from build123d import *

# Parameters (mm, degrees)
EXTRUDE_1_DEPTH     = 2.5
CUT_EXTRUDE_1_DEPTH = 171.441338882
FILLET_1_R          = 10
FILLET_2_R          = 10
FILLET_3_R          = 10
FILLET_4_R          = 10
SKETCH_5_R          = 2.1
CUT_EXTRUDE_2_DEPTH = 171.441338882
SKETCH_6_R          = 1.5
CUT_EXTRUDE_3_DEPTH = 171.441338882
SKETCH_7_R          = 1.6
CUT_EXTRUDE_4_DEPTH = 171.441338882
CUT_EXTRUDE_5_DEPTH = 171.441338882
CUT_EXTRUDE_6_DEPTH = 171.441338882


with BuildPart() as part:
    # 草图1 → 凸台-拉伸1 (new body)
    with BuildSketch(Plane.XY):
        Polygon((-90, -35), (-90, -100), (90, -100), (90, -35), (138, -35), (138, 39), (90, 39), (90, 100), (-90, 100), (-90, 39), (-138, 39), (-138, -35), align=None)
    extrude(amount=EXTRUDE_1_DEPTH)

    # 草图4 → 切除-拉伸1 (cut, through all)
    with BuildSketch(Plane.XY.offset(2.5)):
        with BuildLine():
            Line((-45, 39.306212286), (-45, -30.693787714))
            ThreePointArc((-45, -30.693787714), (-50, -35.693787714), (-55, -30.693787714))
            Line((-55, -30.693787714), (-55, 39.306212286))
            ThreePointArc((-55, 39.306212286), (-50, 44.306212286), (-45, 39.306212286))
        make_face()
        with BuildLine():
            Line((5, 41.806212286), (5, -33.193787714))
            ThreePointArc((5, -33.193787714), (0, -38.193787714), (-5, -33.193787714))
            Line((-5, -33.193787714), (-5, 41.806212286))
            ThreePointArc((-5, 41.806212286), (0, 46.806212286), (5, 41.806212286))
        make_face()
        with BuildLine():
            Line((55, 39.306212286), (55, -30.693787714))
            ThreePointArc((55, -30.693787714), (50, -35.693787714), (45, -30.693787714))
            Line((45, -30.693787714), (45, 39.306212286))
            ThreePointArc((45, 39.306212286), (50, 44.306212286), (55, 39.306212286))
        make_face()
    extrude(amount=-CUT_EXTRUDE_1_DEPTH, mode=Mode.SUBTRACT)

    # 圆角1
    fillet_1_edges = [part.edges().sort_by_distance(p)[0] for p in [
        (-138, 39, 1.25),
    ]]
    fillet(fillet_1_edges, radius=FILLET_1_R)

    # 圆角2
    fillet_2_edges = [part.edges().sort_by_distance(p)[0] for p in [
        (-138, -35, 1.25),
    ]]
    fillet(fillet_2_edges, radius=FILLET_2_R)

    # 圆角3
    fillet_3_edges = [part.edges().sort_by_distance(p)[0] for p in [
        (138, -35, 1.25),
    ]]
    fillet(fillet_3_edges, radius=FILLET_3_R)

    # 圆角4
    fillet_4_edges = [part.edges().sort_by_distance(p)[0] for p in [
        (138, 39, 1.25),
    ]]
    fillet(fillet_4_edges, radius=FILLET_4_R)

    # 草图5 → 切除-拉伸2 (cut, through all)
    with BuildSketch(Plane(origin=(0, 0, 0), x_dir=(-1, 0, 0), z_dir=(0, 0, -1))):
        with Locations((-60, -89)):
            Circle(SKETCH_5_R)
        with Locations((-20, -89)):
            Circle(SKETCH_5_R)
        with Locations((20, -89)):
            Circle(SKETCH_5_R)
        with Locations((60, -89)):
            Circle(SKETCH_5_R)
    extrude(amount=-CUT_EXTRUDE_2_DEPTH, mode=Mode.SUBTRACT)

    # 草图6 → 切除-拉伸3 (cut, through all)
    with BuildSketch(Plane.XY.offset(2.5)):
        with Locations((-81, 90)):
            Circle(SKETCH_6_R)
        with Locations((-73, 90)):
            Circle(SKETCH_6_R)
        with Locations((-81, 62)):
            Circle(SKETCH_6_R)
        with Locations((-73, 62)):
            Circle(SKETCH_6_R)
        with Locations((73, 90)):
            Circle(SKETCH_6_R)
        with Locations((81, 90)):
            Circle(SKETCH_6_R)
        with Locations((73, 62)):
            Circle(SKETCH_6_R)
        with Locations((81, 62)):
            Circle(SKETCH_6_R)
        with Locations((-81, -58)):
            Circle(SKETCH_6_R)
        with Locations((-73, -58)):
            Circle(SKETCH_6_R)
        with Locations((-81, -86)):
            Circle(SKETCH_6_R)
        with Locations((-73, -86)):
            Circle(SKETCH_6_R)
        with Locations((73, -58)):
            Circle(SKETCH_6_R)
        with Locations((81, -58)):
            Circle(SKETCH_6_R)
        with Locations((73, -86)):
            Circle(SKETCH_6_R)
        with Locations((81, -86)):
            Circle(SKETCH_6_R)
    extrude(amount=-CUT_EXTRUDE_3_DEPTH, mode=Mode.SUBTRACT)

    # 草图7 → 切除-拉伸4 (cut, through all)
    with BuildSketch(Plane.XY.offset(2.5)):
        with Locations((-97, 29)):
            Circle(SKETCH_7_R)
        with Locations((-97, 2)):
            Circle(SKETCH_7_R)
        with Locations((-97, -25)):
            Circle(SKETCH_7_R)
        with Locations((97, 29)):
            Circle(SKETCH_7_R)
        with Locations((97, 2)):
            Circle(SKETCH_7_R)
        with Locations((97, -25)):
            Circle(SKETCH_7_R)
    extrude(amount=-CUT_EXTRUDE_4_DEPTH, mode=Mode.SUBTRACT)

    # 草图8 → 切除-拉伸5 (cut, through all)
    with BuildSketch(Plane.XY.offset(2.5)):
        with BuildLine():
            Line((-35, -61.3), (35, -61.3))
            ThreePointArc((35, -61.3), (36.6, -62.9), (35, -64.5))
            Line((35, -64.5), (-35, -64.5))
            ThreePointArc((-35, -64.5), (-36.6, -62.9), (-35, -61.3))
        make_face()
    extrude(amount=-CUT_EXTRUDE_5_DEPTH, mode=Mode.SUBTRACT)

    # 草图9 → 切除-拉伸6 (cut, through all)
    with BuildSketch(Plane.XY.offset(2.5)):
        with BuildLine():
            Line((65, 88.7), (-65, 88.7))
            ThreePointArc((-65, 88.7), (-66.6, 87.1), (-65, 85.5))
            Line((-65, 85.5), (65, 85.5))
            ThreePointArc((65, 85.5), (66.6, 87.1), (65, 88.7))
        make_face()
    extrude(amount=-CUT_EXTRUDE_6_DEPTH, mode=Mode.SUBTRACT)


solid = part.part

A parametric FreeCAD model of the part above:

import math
import FreeCAD as App
import Part
import Sketcher

V = App.Vector


def edges_at(feature, points):
    """Names of the edges that pass closest to the given points."""
    edges = feature.Shape.Edges
    near = lambda p: min(range(len(edges)), key=lambda i: edges[i].distToShape(Part.Vertex(*p))[0])
    return sorted({f"Edge{near(p) + 1}" for p in points})

doc = App.newDocument("Part")
params = doc.addObject("Spreadsheet::Sheet", "Params")
for row, (alias, value) in enumerate([
    ("sketch1_width", "180 mm"),
    ("sketch1_width2", "48 mm"),
    ("sketch1_height", "65 mm"),
    ("sketch1_height2", "74 mm"),
    ("sketch1_height3", "61 mm"),
    ("pad1_length", "2.5 mm"),
    ("sketch2_radius", "5 mm"),
    ("sketch2_height", "70 mm"),
    ("sketch2_height2", "75 mm"),
    ("fillet_radius", "10 mm"),
    ("fillet2_radius", "10 mm"),
    ("fillet3_radius", "10 mm"),
    ("fillet4_radius", "10 mm"),
    ("sketch3_diameter", "4.2 mm"),
    ("sketch4_diameter", "3 mm"),
    ("sketch5_diameter", "3.2 mm"),
    ("sketch6_radius", "1.6 mm"),
    ("sketch6_width", "70 mm"),
    ("sketch7_radius", "1.6 mm"),
    ("sketch7_width", "130 mm"),
], start=1):
    params.set(f"A{row}", alias)
    params.set(f"B{row}", "=" + value)
    params.setAlias(f"B{row}", alias)

body = doc.addObject("PartDesign::Body", "Body")

# Sketch on XY plane
sketch1 = body.newObject("Sketcher::SketchObject", "Sketch")
sketch1.AttachmentSupport = (doc.getObject("XY_Plane"), [""])
sketch1.MapMode = "FlatFace"
sketch1.addGeometry(Part.LineSegment(V(-90, -35, 0), V(-90, -100, 0)), False)
sketch1.addGeometry(Part.LineSegment(V(-90, -100, 0), V(90, -100, 0)), False)
sketch1.addGeometry(Part.LineSegment(V(90, -100, 0), V(90, -35, 0)), False)
sketch1.addGeometry(Part.LineSegment(V(90, -35, 0), V(138, -35, 0)), False)
sketch1.addGeometry(Part.LineSegment(V(138, -35, 0), V(138, 39, 0)), False)
sketch1.addGeometry(Part.LineSegment(V(138, 39, 0), V(90, 39, 0)), False)
sketch1.addGeometry(Part.LineSegment(V(90, 39, 0), V(90, 100, 0)), False)
sketch1.addGeometry(Part.LineSegment(V(90, 100, 0), V(-90, 100, 0)), False)
sketch1.addGeometry(Part.LineSegment(V(-90, 100, 0), V(-90, 39, 0)), False)
sketch1.addGeometry(Part.LineSegment(V(-90, 39, 0), V(-138, 39, 0)), False)
sketch1.addGeometry(Part.LineSegment(V(-138, 39, 0), V(-138, -35, 0)), False)
sketch1.addGeometry(Part.LineSegment(V(-138, -35, 0), V(-90, -35, 0)), False)
sketch1.addConstraint(Sketcher.Constraint("Coincident", 0, 2, 1, 1))
sketch1.addConstraint(Sketcher.Constraint("Coincident", 1, 2, 2, 1))
sketch1.addConstraint(Sketcher.Constraint("Coincident", 2, 2, 3, 1))
sketch1.addConstraint(Sketcher.Constraint("Coincident", 3, 2, 4, 1))
sketch1.addConstraint(Sketcher.Constraint("Coincident", 4, 2, 5, 1))
sketch1.addConstraint(Sketcher.Constraint("Coincident", 5, 2, 6, 1))
sketch1.addConstraint(Sketcher.Constraint("Coincident", 6, 2, 7, 1))
sketch1.addConstraint(Sketcher.Constraint("Coincident", 7, 2, 8, 1))
sketch1.addConstraint(Sketcher.Constraint("Coincident", 8, 2, 9, 1))
sketch1.addConstraint(Sketcher.Constraint("Coincident", 9, 2, 10, 1))
sketch1.addConstraint(Sketcher.Constraint("Coincident", 10, 2, 11, 1))
sketch1.addConstraint(Sketcher.Constraint("Coincident", 11, 2, 0, 1))
sketch1.addConstraint(Sketcher.Constraint("Vertical", 0))
sketch1.addConstraint(Sketcher.Constraint("Horizontal", 1))
sketch1.addConstraint(Sketcher.Constraint("Vertical", 2))
sketch1.addConstraint(Sketcher.Constraint("Horizontal", 3))
sketch1.addConstraint(Sketcher.Constraint("Vertical", 4))
sketch1.addConstraint(Sketcher.Constraint("Horizontal", 5))
sketch1.addConstraint(Sketcher.Constraint("Vertical", 6))
sketch1.addConstraint(Sketcher.Constraint("Horizontal", 7))
sketch1.addConstraint(Sketcher.Constraint("Vertical", 8))
sketch1.addConstraint(Sketcher.Constraint("Horizontal", 9))
sketch1.addConstraint(Sketcher.Constraint("Vertical", 10))
sketch1.addConstraint(Sketcher.Constraint("Horizontal", 11))
sketch1.addConstraint(Sketcher.Constraint("Symmetric", 0, 2, 6, 2, -1, 1))
sketch1.addConstraint(Sketcher.Constraint("Symmetric", 5, 2, 8, 2, -2))
sketch1.addConstraint(Sketcher.Constraint("Symmetric", 3, 2, 10, 2, -2))
sketch1.addConstraint(Sketcher.Constraint("Vertical", 2, 2, 5, 2))
sketch1.addConstraint(Sketcher.Constraint("DistanceX", 1, 1, 1, 2, 180.0))
sketch1.addConstraint(Sketcher.Constraint("DistanceX", 3, 1, 3, 2, 48.0))
sketch1.addConstraint(Sketcher.Constraint("DistanceY", 0, 2, 0, 1, 65.0))
sketch1.addConstraint(Sketcher.Constraint("DistanceY", 4, 1, 4, 2, 74.0))
sketch1.addConstraint(Sketcher.Constraint("DistanceY", 6, 1, 6, 2, 61.0))
sketch1.setExpression("Constraints[28]", "Params.sketch1_width")
sketch1.setExpression("Constraints[29]", "Params.sketch1_width2")
sketch1.setExpression("Constraints[30]", "Params.sketch1_height")
sketch1.setExpression("Constraints[31]", "Params.sketch1_height2")
sketch1.setExpression("Constraints[32]", "Params.sketch1_height3")
pad1 = body.newObject("PartDesign::Pad", "Pad")
pad1.Profile = sketch1
pad1.setExpression("Length", "Params.pad1_length")

# Sketch on XY plane
sketch2 = body.newObject("Sketcher::SketchObject", "Sketch001")
sketch2.AttachmentSupport = (doc.getObject("XY_Plane"), [""])
sketch2.MapMode = "FlatFace"
sketch2.AttachmentOffset = App.Placement(V(0, 0, 2.5), App.Rotation())
sketch2.addGeometry(Part.LineSegment(V(-45, -30.693788, 0), V(-45, 39.306212, 0)), False)
sketch2.addGeometry(Part.ArcOfCircle(Part.Circle(V(-50, 39.306212, 0), V(0, 0, 1), 5), math.radians(0), math.radians(180)), False)
sketch2.addGeometry(Part.LineSegment(V(-55, 39.306212, 0), V(-55, -30.693788, 0)), False)
sketch2.addGeometry(Part.ArcOfCircle(Part.Circle(V(-50, -30.693788, 0), V(0, 0, 1), 5), math.radians(180), math.radians(360)), False)
sketch2.addGeometry(Part.LineSegment(V(5, -33.193788, 0), V(5, 41.806212, 0)), False)
sketch2.addGeometry(Part.ArcOfCircle(Part.Circle(V(0, 41.806212, 0), V(0, 0, 1), 5), math.radians(0), math.radians(180)), False)
sketch2.addGeometry(Part.LineSegment(V(-5, 41.806212, 0), V(-5, -33.193788, 0)), False)
sketch2.addGeometry(Part.ArcOfCircle(Part.Circle(V(0, -33.193788, 0), V(0, 0, 1), 5), math.radians(180), math.radians(360)), False)
sketch2.addGeometry(Part.LineSegment(V(55, -30.693788, 0), V(55, 39.306212, 0)), False)
sketch2.addGeometry(Part.ArcOfCircle(Part.Circle(V(50, 39.306212, 0), V(0, 0, 1), 5), math.radians(0), math.radians(180)), False)
sketch2.addGeometry(Part.LineSegment(V(45, 39.306212, 0), V(45, -30.693788, 0)), False)
sketch2.addGeometry(Part.ArcOfCircle(Part.Circle(V(50, -30.693788, 0), V(0, 0, 1), 5), math.radians(180), math.radians(360)), False)
sketch2.addConstraint(Sketcher.Constraint("Tangent", 0, 2, 1, 1))
sketch2.addConstraint(Sketcher.Constraint("Tangent", 1, 2, 2, 1))
sketch2.addConstraint(Sketcher.Constraint("Tangent", 2, 2, 3, 1))
sketch2.addConstraint(Sketcher.Constraint("Tangent", 3, 2, 0, 1))
sketch2.addConstraint(Sketcher.Constraint("Tangent", 4, 2, 5, 1))
sketch2.addConstraint(Sketcher.Constraint("Tangent", 5, 2, 6, 1))
sketch2.addConstraint(Sketcher.Constraint("Tangent", 6, 2, 7, 1))
sketch2.addConstraint(Sketcher.Constraint("Tangent", 7, 2, 4, 1))
sketch2.addConstraint(Sketcher.Constraint("Tangent", 8, 2, 9, 1))
sketch2.addConstraint(Sketcher.Constraint("Tangent", 9, 2, 10, 1))
sketch2.addConstraint(Sketcher.Constraint("Tangent", 10, 2, 11, 1))
sketch2.addConstraint(Sketcher.Constraint("Tangent", 11, 2, 8, 1))
sketch2.addConstraint(Sketcher.Constraint("Vertical", 0))
sketch2.addConstraint(Sketcher.Constraint("Vertical", 2))
sketch2.addConstraint(Sketcher.Constraint("Vertical", 4))
sketch2.addConstraint(Sketcher.Constraint("Vertical", 6))
sketch2.addConstraint(Sketcher.Constraint("Vertical", 8))
sketch2.addConstraint(Sketcher.Constraint("Vertical", 10))
sketch2.addConstraint(Sketcher.Constraint("Equal", 3, 5))
sketch2.addConstraint(Sketcher.Constraint("Equal", 7, 9))
sketch2.addConstraint(Sketcher.Constraint("Symmetric", 1, 3, 9, 3, -2))
sketch2.addConstraint(Sketcher.Constraint("PointOnObject", 5, 3, -2))
sketch2.addConstraint(Sketcher.Constraint("Horizontal", 3, 3, 11, 3))
sketch2.addConstraint(Sketcher.Constraint("Radius", 1, 5.0))
sketch2.addConstraint(Sketcher.Constraint("DistanceY", 0, 1, 0, 2, 70.0))
sketch2.addConstraint(Sketcher.Constraint("DistanceY", 4, 1, 4, 2, 75.0))
sketch2.addConstraint(Sketcher.Constraint("DistanceX", 1, 3, -1, 1, 50.0))
sketch2.addConstraint(Sketcher.Constraint("DistanceY", 1, 3, 5, 3, 2.5))
sketch2.addConstraint(Sketcher.Constraint("DistanceY", -1, 1, 1, 3, 39.306212))
sketch2.setExpression("Constraints[23]", "Params.sketch2_radius")
sketch2.setExpression("Constraints[24]", "Params.sketch2_height")
sketch2.setExpression("Constraints[25]", "Params.sketch2_height2")
pocket1 = body.newObject("PartDesign::Pocket", "Pocket")
pocket1.Profile = sketch2
pocket1.Type = "ThroughAll"
doc.recompute()

fillet = body.newObject("PartDesign::Fillet", "Fillet")
fillet.Base = (pocket1, edges_at(pocket1, [(-138, 39, 1.25)]))
fillet.setExpression("Radius", "Params.fillet_radius")
doc.recompute()

fillet2 = body.newObject("PartDesign::Fillet", "Fillet001")
fillet2.Base = (fillet, edges_at(fillet, [(-138, -35, 1.25)]))
fillet2.setExpression("Radius", "Params.fillet2_radius")
doc.recompute()

fillet3 = body.newObject("PartDesign::Fillet", "Fillet002")
fillet3.Base = (fillet2, edges_at(fillet2, [(138, -35, 1.25)]))
fillet3.setExpression("Radius", "Params.fillet3_radius")
doc.recompute()

fillet4 = body.newObject("PartDesign::Fillet", "Fillet003")
fillet4.Base = (fillet3, edges_at(fillet3, [(138, 39, 1.25)]))
fillet4.setExpression("Radius", "Params.fillet4_radius")

# Sketch on XY plane
sketch3 = body.newObject("Sketcher::SketchObject", "Sketch002")
sketch3.AttachmentSupport = (doc.getObject("XY_Plane"), [""])
sketch3.MapMode = "FlatFace"
sketch3.addGeometry(Part.Circle(V(60, -89, 0), V(0, 0, 1), 2.1), False)
sketch3.addGeometry(Part.Circle(V(20, -89, 0), V(0, 0, 1), 2.1), False)
sketch3.addGeometry(Part.Circle(V(-20, -89, 0), V(0, 0, 1), 2.1), False)
sketch3.addGeometry(Part.Circle(V(-60, -89, 0), V(0, 0, 1), 2.1), False)
sketch3.addConstraint(Sketcher.Constraint("Equal", 0, 1))
sketch3.addConstraint(Sketcher.Constraint("Equal", 1, 2))
sketch3.addConstraint(Sketcher.Constraint("Equal", 2, 3))
sketch3.addConstraint(Sketcher.Constraint("Symmetric", 1, 3, 2, 3, -2))
sketch3.addConstraint(Sketcher.Constraint("Symmetric", 0, 3, 3, 3, -2))
sketch3.addConstraint(Sketcher.Constraint("Horizontal", 0, 3, 1, 3))
sketch3.addConstraint(Sketcher.Constraint("Diameter", 0, 4.2))
sketch3.addConstraint(Sketcher.Constraint("DistanceX", -1, 1, 0, 3, 60.0))
sketch3.addConstraint(Sketcher.Constraint("DistanceY", 0, 3, -1, 1, 89.0))
sketch3.addConstraint(Sketcher.Constraint("DistanceX", -1, 1, 1, 3, 20.0))
sketch3.setExpression("Constraints[6]", "Params.sketch3_diameter")
pocket2 = body.newObject("PartDesign::Pocket", "Pocket001")
pocket2.Profile = sketch3
pocket2.Type = "ThroughAll"
pocket2.Reversed = True

# Sketch on XY plane
sketch4 = body.newObject("Sketcher::SketchObject", "Sketch003")
sketch4.AttachmentSupport = (doc.getObject("XY_Plane"), [""])
sketch4.MapMode = "FlatFace"
sketch4.AttachmentOffset = App.Placement(V(0, 0, 2.5), App.Rotation())
sketch4.addGeometry(Part.Circle(V(-81, 90, 0), V(0, 0, 1), 1.5), False)
sketch4.addGeometry(Part.Circle(V(-73, 90, 0), V(0, 0, 1), 1.5), False)
sketch4.addGeometry(Part.Circle(V(-81, 62, 0), V(0, 0, 1), 1.5), False)
sketch4.addGeometry(Part.Circle(V(-73, 62, 0), V(0, 0, 1), 1.5), False)
sketch4.addGeometry(Part.Circle(V(73, 90, 0), V(0, 0, 1), 1.5), False)
sketch4.addGeometry(Part.Circle(V(81, 90, 0), V(0, 0, 1), 1.5), False)
sketch4.addGeometry(Part.Circle(V(73, 62, 0), V(0, 0, 1), 1.5), False)
sketch4.addGeometry(Part.Circle(V(81, 62, 0), V(0, 0, 1), 1.5), False)
sketch4.addGeometry(Part.Circle(V(-81, -58, 0), V(0, 0, 1), 1.5), False)
sketch4.addGeometry(Part.Circle(V(-73, -58, 0), V(0, 0, 1), 1.5), False)
sketch4.addGeometry(Part.Circle(V(-81, -86, 0), V(0, 0, 1), 1.5), False)
sketch4.addGeometry(Part.Circle(V(-73, -86, 0), V(0, 0, 1), 1.5), False)
sketch4.addGeometry(Part.Circle(V(73, -58, 0), V(0, 0, 1), 1.5), False)
sketch4.addGeometry(Part.Circle(V(81, -58, 0), V(0, 0, 1), 1.5), False)
sketch4.addGeometry(Part.Circle(V(73, -86, 0), V(0, 0, 1), 1.5), False)
sketch4.addGeometry(Part.Circle(V(81, -86, 0), V(0, 0, 1), 1.5), False)
sketch4.addConstraint(Sketcher.Constraint("Equal", 0, 1))
sketch4.addConstraint(Sketcher.Constraint("Equal", 1, 2))
sketch4.addConstraint(Sketcher.Constraint("Equal", 2, 3))
sketch4.addConstraint(Sketcher.Constraint("Equal", 3, 4))
sketch4.addConstraint(Sketcher.Constraint("Equal", 4, 5))
sketch4.addConstraint(Sketcher.Constraint("Equal", 5, 6))
sketch4.addConstraint(Sketcher.Constraint("Equal", 6, 7))
sketch4.addConstraint(Sketcher.Constraint("Equal", 7, 8))
sketch4.addConstraint(Sketcher.Constraint("Equal", 8, 9))
sketch4.addConstraint(Sketcher.Constraint("Equal", 9, 10))
sketch4.addConstraint(Sketcher.Constraint("Equal", 10, 11))
sketch4.addConstraint(Sketcher.Constraint("Equal", 11, 12))
sketch4.addConstraint(Sketcher.Constraint("Equal", 12, 13))
sketch4.addConstraint(Sketcher.Constraint("Equal", 13, 14))
sketch4.addConstraint(Sketcher.Constraint("Equal", 14, 15))
sketch4.addConstraint(Sketcher.Constraint("Symmetric", 1, 3, 4, 3, -2))
sketch4.addConstraint(Sketcher.Constraint("Symmetric", 0, 3, 5, 3, -2))
sketch4.addConstraint(Sketcher.Constraint("Symmetric", 3, 3, 6, 3, -2))
sketch4.addConstraint(Sketcher.Constraint("Symmetric", 2, 3, 7, 3, -2))
sketch4.addConstraint(Sketcher.Constraint("Symmetric", 9, 3, 12, 3, -2))
sketch4.addConstraint(Sketcher.Constraint("Symmetric", 8, 3, 13, 3, -2))
sketch4.addConstraint(Sketcher.Constraint("Symmetric", 11, 3, 14, 3, -2))
sketch4.addConstraint(Sketcher.Constraint("Symmetric", 10, 3, 15, 3, -2))
sketch4.addConstraint(Sketcher.Constraint("Horizontal", 0, 3, 1, 3))
sketch4.addConstraint(Sketcher.Constraint("Horizontal", 2, 3, 3, 3))
sketch4.addConstraint(Sketcher.Constraint("Horizontal", 8, 3, 9, 3))
sketch4.addConstraint(Sketcher.Constraint("Horizontal", 10, 3, 11, 3))
sketch4.addConstraint(Sketcher.Constraint("Vertical", 0, 3, 2, 3))
sketch4.addConstraint(Sketcher.Constraint("Vertical", 1, 3, 3, 3))
sketch4.addConstraint(Sketcher.Constraint("Vertical", 2, 3, 8, 3))
sketch4.addConstraint(Sketcher.Constraint("Vertical", 3, 3, 9, 3))
sketch4.addConstraint(Sketcher.Constraint("Vertical", 8, 3, 10, 3))
sketch4.addConstraint(Sketcher.Constraint("Vertical", 9, 3, 11, 3))
sketch4.addConstraint(Sketcher.Constraint("Diameter", 0, 3.0))
sketch4.addConstraint(Sketcher.Constraint("DistanceX", 0, 3, -1, 1, 81.0))
sketch4.addConstraint(Sketcher.Constraint("DistanceY", -1, 1, 0, 3, 90.0))
sketch4.addConstraint(Sketcher.Constraint("DistanceX", 1, 3, -1, 1, 73.0))
sketch4.addConstraint(Sketcher.Constraint("DistanceY", -1, 1, 2, 3, 62.0))
sketch4.addConstraint(Sketcher.Constraint("DistanceY", 8, 3, -1, 1, 58.0))
sketch4.addConstraint(Sketcher.Constraint("DistanceY", 10, 3, -1, 1, 86.0))
sketch4.setExpression("Constraints[33]", "Params.sketch4_diameter")
pocket3 = body.newObject("PartDesign::Pocket", "Pocket002")
pocket3.Profile = sketch4
pocket3.Type = "ThroughAll"

# Sketch on XY plane
sketch5 = body.newObject("Sketcher::SketchObject", "Sketch004")
sketch5.AttachmentSupport = (doc.getObject("XY_Plane"), [""])
sketch5.MapMode = "FlatFace"
sketch5.AttachmentOffset = App.Placement(V(0, 0, 2.5), App.Rotation())
sketch5.addGeometry(Part.Circle(V(-97, 29, 0), V(0, 0, 1), 1.6), False)
sketch5.addGeometry(Part.Circle(V(-97, 2, 0), V(0, 0, 1), 1.6), False)
sketch5.addGeometry(Part.Circle(V(-97, -25, 0), V(0, 0, 1), 1.6), False)
sketch5.addGeometry(Part.Circle(V(97, 29, 0), V(0, 0, 1), 1.6), False)
sketch5.addGeometry(Part.Circle(V(97, 2, 0), V(0, 0, 1), 1.6), False)
sketch5.addGeometry(Part.Circle(V(97, -25, 0), V(0, 0, 1), 1.6), False)
sketch5.addConstraint(Sketcher.Constraint("Equal", 0, 1))
sketch5.addConstraint(Sketcher.Constraint("Equal", 1, 2))
sketch5.addConstraint(Sketcher.Constraint("Equal", 2, 3))
sketch5.addConstraint(Sketcher.Constraint("Equal", 3, 4))
sketch5.addConstraint(Sketcher.Constraint("Equal", 4, 5))
sketch5.addConstraint(Sketcher.Constraint("Symmetric", 0, 3, 3, 3, -2))
sketch5.addConstraint(Sketcher.Constraint("Symmetric", 1, 3, 4, 3, -2))
sketch5.addConstraint(Sketcher.Constraint("Symmetric", 2, 3, 5, 3, -2))
sketch5.addConstraint(Sketcher.Constraint("Vertical", 0, 3, 1, 3))
sketch5.addConstraint(Sketcher.Constraint("Vertical", 1, 3, 2, 3))
sketch5.addConstraint(Sketcher.Constraint("Diameter", 0, 3.2))
sketch5.addConstraint(Sketcher.Constraint("DistanceX", 0, 3, -1, 1, 97.0))
sketch5.addConstraint(Sketcher.Constraint("DistanceY", -1, 1, 0, 3, 29.0))
sketch5.addConstraint(Sketcher.Constraint("DistanceY", -1, 1, 1, 3, 2.0))
sketch5.addConstraint(Sketcher.Constraint("DistanceY", 2, 3, -1, 1, 25.0))
sketch5.setExpression("Constraints[10]", "Params.sketch5_diameter")
pocket4 = body.newObject("PartDesign::Pocket", "Pocket003")
pocket4.Profile = sketch5
pocket4.Type = "ThroughAll"

# Sketch on XY plane
sketch6 = body.newObject("Sketcher::SketchObject", "Sketch005")
sketch6.AttachmentSupport = (doc.getObject("XY_Plane"), [""])
sketch6.MapMode = "FlatFace"
sketch6.AttachmentOffset = App.Placement(V(0, 0, 2.5), App.Rotation())
sketch6.addGeometry(Part.LineSegment(V(35, -61.3, 0), V(-35, -61.3, 0)), False)
sketch6.addGeometry(Part.ArcOfCircle(Part.Circle(V(-35, -62.9, 0), V(0, 0, 1), 1.6), math.radians(90), math.radians(270)), False)
sketch6.addGeometry(Part.LineSegment(V(-35, -64.5, 0), V(35, -64.5, 0)), False)
sketch6.addGeometry(Part.ArcOfCircle(Part.Circle(V(35, -62.9, 0), V(0, 0, 1), 1.6), math.radians(-90), math.radians(90)), False)
sketch6.addConstraint(Sketcher.Constraint("Tangent", 0, 2, 1, 1))
sketch6.addConstraint(Sketcher.Constraint("Tangent", 1, 2, 2, 1))
sketch6.addConstraint(Sketcher.Constraint("Tangent", 2, 2, 3, 1))
sketch6.addConstraint(Sketcher.Constraint("Tangent", 3, 2, 0, 1))
sketch6.addConstraint(Sketcher.Constraint("Horizontal", 0))
sketch6.addConstraint(Sketcher.Constraint("Horizontal", 2))
sketch6.addConstraint(Sketcher.Constraint("Radius", 1, 1.6))
sketch6.addConstraint(Sketcher.Constraint("DistanceX", 0, 2, 0, 1, 70.0))
sketch6.addConstraint(Sketcher.Constraint("DistanceX", 1, 3, -1, 1, 35.0))
sketch6.addConstraint(Sketcher.Constraint("DistanceY", 1, 3, -1, 1, 62.9))
sketch6.setExpression("Constraints[6]", "Params.sketch6_radius")
sketch6.setExpression("Constraints[7]", "Params.sketch6_width")
pocket5 = body.newObject("PartDesign::Pocket", "Pocket004")
pocket5.Profile = sketch6
pocket5.Type = "ThroughAll"

# Sketch on XY plane
sketch7 = body.newObject("Sketcher::SketchObject", "Sketch006")
sketch7.AttachmentSupport = (doc.getObject("XY_Plane"), [""])
sketch7.MapMode = "FlatFace"
sketch7.AttachmentOffset = App.Placement(V(0, 0, 2.5), App.Rotation())
sketch7.addGeometry(Part.LineSegment(V(65, 88.7, 0), V(-65, 88.7, 0)), False)
sketch7.addGeometry(Part.ArcOfCircle(Part.Circle(V(-65, 87.1, 0), V(0, 0, 1), 1.6), math.radians(90), math.radians(270)), False)
sketch7.addGeometry(Part.LineSegment(V(-65, 85.5, 0), V(65, 85.5, 0)), False)
sketch7.addGeometry(Part.ArcOfCircle(Part.Circle(V(65, 87.1, 0), V(0, 0, 1), 1.6), math.radians(-90), math.radians(90)), False)
sketch7.addConstraint(Sketcher.Constraint("Tangent", 0, 2, 1, 1))
sketch7.addConstraint(Sketcher.Constraint("Tangent", 1, 2, 2, 1))
sketch7.addConstraint(Sketcher.Constraint("Tangent", 2, 2, 3, 1))
sketch7.addConstraint(Sketcher.Constraint("Tangent", 3, 2, 0, 1))
sketch7.addConstraint(Sketcher.Constraint("Horizontal", 0))
sketch7.addConstraint(Sketcher.Constraint("Horizontal", 2))
sketch7.addConstraint(Sketcher.Constraint("Radius", 1, 1.6))
sketch7.addConstraint(Sketcher.Constraint("DistanceX", 0, 2, 0, 1, 130.0))
sketch7.addConstraint(Sketcher.Constraint("DistanceX", 1, 3, -1, 1, 65.0))
sketch7.addConstraint(Sketcher.Constraint("DistanceY", -1, 1, 1, 3, 87.1))
sketch7.setExpression("Constraints[6]", "Params.sketch7_radius")
sketch7.setExpression("Constraints[7]", "Params.sketch7_width")
pocket6 = body.newObject("PartDesign::Pocket", "Pocket005")
pocket6.Profile = sketch7
pocket6.Type = "ThroughAll"

doc.recompute()
